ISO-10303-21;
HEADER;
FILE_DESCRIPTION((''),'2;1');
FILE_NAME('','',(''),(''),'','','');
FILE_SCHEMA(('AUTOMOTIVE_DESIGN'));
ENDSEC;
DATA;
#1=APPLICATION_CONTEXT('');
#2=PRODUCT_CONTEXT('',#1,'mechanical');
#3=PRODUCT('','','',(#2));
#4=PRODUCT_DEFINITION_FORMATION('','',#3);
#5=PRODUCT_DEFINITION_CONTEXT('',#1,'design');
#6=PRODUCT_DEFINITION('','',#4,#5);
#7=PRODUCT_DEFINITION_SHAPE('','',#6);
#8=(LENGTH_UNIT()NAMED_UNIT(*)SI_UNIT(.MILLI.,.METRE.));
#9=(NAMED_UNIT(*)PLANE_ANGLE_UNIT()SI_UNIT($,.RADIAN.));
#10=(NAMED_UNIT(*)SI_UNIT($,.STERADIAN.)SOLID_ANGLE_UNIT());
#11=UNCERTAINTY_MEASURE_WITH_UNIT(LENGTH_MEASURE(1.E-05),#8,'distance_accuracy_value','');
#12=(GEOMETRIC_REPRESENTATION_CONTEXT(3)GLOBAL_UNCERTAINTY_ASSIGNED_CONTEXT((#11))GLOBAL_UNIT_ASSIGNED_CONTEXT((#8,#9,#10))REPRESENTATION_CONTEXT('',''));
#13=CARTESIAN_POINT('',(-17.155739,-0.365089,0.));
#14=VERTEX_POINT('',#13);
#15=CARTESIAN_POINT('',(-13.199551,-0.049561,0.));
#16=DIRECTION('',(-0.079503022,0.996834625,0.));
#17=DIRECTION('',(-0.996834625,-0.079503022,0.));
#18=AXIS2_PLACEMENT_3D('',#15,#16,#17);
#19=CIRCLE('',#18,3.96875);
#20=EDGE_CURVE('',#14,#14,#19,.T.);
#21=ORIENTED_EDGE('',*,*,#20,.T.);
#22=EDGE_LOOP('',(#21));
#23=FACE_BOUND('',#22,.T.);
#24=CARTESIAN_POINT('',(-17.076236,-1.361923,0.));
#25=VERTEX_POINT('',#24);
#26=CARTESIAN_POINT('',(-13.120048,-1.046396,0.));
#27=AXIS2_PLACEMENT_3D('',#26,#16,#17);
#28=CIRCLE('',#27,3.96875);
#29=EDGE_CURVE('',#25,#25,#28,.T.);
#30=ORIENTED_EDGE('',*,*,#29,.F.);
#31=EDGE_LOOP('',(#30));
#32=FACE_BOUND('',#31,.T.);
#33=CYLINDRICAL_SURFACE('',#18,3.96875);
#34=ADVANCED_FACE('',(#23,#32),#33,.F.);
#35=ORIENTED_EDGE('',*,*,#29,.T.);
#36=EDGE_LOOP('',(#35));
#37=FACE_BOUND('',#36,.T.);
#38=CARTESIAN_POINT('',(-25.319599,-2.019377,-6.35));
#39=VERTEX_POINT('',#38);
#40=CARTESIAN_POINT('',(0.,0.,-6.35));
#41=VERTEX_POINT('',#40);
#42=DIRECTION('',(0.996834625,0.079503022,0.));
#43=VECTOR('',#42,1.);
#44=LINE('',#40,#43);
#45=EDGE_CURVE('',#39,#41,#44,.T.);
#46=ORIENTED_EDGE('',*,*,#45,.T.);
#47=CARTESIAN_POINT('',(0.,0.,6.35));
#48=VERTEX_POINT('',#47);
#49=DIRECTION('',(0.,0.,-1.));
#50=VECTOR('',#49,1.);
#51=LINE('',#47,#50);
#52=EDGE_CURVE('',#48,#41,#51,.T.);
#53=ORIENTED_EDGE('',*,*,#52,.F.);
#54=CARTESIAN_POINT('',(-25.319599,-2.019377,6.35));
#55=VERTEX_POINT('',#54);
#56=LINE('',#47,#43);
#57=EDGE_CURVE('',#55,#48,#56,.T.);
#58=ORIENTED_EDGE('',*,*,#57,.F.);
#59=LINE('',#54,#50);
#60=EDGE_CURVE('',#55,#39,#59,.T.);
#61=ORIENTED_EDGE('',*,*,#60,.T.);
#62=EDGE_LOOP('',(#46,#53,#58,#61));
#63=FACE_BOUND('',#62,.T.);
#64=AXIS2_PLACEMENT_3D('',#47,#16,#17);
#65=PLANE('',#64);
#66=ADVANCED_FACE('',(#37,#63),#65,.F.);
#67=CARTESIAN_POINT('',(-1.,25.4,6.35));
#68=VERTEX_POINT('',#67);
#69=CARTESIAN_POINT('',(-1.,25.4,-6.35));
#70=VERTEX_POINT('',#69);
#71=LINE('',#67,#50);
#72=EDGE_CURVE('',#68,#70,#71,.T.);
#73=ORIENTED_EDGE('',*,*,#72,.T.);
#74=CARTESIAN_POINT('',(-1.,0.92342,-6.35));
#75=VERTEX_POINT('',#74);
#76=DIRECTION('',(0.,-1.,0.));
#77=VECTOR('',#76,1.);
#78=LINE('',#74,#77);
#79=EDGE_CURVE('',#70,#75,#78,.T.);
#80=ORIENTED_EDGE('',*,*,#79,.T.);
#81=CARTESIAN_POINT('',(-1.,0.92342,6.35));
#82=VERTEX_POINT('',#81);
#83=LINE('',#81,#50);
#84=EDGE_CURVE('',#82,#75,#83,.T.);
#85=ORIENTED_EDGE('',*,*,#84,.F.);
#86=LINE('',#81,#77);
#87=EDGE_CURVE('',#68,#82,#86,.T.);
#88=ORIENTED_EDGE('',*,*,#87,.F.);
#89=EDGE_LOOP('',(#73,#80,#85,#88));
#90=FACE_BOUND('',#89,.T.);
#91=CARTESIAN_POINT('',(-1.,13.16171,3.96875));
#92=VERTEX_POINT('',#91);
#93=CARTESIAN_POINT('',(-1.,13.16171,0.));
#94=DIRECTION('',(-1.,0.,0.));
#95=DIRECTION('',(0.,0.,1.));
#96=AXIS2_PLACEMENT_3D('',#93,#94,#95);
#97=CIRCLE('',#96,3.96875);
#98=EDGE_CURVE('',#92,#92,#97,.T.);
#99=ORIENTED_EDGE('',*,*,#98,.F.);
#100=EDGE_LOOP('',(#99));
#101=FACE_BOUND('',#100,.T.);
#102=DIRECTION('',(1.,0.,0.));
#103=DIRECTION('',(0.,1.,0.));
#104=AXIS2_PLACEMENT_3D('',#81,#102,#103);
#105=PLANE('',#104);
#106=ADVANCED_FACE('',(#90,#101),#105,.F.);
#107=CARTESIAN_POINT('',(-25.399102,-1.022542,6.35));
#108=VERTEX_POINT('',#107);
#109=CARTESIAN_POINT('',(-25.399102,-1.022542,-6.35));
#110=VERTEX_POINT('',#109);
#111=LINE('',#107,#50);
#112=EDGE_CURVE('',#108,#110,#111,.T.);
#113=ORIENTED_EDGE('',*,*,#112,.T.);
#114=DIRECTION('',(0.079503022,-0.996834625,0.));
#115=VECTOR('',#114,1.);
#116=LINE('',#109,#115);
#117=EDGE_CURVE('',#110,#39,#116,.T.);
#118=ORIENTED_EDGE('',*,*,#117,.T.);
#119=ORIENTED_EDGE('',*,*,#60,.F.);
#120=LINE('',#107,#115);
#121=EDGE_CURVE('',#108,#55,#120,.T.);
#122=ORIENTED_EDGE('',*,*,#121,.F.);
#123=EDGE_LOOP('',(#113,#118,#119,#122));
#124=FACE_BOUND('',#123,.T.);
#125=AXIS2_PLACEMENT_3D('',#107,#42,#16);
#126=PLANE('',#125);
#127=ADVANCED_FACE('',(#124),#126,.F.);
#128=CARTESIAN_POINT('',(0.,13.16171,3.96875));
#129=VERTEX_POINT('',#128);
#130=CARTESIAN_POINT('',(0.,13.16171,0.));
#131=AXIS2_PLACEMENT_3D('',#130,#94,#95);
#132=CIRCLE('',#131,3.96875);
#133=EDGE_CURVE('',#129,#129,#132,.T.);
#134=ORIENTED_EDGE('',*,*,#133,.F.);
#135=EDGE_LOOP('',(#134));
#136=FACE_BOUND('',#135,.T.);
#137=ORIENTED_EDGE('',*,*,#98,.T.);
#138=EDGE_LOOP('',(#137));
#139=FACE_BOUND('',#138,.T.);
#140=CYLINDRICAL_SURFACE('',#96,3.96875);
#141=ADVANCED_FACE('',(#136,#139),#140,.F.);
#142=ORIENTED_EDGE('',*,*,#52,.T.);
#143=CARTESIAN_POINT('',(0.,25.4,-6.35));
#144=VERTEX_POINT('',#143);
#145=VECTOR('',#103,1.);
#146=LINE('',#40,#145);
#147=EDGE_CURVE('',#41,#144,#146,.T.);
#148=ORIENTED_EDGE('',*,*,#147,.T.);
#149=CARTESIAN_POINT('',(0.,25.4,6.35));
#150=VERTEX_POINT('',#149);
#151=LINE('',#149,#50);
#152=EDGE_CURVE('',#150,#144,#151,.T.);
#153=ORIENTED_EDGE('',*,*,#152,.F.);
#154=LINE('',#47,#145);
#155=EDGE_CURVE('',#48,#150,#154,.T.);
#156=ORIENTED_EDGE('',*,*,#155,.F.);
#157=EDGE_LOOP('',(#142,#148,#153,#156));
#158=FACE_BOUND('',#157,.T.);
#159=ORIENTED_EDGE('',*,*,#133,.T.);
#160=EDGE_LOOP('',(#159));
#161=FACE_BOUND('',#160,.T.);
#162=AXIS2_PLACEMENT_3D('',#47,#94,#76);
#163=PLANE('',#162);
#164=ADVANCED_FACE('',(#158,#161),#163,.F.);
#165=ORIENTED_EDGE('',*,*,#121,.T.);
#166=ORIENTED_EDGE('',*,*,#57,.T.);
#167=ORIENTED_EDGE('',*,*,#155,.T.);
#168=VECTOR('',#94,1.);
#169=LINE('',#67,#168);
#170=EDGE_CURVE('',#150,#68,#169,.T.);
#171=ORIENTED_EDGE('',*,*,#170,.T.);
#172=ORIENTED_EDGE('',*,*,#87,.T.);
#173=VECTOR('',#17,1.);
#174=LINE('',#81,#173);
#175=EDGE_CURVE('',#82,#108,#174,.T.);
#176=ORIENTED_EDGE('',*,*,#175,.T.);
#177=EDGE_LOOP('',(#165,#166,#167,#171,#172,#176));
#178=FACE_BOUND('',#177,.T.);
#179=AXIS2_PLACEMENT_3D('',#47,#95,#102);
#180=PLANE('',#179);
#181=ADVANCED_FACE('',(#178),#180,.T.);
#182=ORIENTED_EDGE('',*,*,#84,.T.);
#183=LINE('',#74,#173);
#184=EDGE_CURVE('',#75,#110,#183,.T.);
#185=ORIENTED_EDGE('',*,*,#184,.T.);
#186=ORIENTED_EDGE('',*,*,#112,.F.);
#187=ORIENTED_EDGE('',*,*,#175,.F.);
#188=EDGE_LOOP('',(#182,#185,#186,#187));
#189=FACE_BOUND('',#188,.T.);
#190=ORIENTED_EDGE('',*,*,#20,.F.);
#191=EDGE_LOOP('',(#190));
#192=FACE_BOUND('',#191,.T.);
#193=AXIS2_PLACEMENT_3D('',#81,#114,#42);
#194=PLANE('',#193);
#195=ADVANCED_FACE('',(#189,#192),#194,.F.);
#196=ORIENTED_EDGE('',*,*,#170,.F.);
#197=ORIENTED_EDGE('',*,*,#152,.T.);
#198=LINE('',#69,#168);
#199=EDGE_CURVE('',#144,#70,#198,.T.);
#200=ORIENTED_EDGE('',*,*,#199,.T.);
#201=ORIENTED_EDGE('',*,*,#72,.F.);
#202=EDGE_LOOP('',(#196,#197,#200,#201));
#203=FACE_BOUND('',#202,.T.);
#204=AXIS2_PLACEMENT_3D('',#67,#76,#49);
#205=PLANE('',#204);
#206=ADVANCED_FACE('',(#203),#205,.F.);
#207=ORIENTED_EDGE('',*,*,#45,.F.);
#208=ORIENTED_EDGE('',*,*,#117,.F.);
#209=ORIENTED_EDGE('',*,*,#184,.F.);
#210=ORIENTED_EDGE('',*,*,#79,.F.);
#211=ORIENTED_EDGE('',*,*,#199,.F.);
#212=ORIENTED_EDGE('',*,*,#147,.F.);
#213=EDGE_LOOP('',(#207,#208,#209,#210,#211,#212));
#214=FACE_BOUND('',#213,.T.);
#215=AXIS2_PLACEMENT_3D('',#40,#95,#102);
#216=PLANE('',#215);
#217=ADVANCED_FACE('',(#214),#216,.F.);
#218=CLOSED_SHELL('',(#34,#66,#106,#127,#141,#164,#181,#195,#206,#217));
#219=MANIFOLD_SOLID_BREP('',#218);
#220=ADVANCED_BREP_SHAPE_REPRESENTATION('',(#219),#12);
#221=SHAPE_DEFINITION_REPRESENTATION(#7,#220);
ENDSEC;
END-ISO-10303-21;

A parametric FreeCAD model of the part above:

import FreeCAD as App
import Part
import Sketcher
from FreeCAD import Vector
Q = App.Units.Quantity


def add_polygon(sketch, points):
    """Adds a closed chain of lines whose ends are joined by coincident constraints."""
    first, n = sketch.GeometryCount, len(points)
    for a, b in zip(points, points[1:] + points[:1]):
        sketch.addGeometry(Part.LineSegment(App.Vector(*a, 0), App.Vector(*b, 0)), False)
    for i in range(n):
        sketch.addConstraint(Sketcher.Constraint("Coincident", first + i, 2, first + (i + 1) % n, 1))

doc = App.newDocument("Part")
params = doc.addObject("Spreadsheet::Sheet", "Params")
for row, (alias, value) in enumerate([
    ("sketch1_height", "1 in"),
    ("sketch1_length", "1 in"),
    ("pad1_length", "0.5 in"),
    ("sketch2_diameter", "0.3125 in"),
    ("hole_diameter", "0.3125 in"),
    ("sketch3_diameter", "0.3125 in"),
    ("hole2_diameter", "0.3125 in"),
], start=1):
    params.set(f"A{row}", alias)
    params.set(f"B{row}", "=" + value)
    params.setAlias(f"B{row}", alias)

body = doc.addObject("PartDesign::Body", "Body")

sketch1 = body.newObject("Sketcher::SketchObject", "Sketch")
sketch1.AttachmentSupport = (doc.getObject("XY_Plane"), [""])
sketch1.MapMode = "FlatFace"
add_polygon(sketch1, [(0, 0), (0, 25.4), (-1, 25.4), (-1, 0.9), (-25.4, -1), (-25.3, -2)])
sketch1.addConstraint([
    Sketcher.Constraint("Vertical", 0),
    Sketcher.Constraint("Horizontal", 1),
    Sketcher.Constraint("Vertical", 2),
    Sketcher.Constraint("Coincident", 5, 2, -1, 1),
    Sketcher.Constraint("Perpendicular", 3, 4),
    Sketcher.Constraint("Perpendicular", 4, 5),
    Sketcher.Constraint("DistanceY", 0, 1, 0, 2, Q("1 in")),
    Sketcher.Constraint("Distance", 5, Q("1 in")),
    Sketcher.Constraint("Angle", 3, Q("-175.44 deg")),
    Sketcher.Constraint("DistanceX", 1, 2, 1, 1, 1.0),
    Sketcher.Constraint("Distance", 4, 1.0),
])
sketch1.setExpression("Constraints[12]", "Params.sketch1_height")
sketch1.setExpression("Constraints[13]", "Params.sketch1_length")
pad1 = body.newObject("PartDesign::Pad", "Pad")
pad1.Profile = sketch1
pad1.setExpression("Length", "Params.pad1_length")
pad1.Midplane = True

sketch2 = body.newObject("Sketcher::SketchObject", "Sketch001")
sketch2.AttachmentSupport = (doc.getObject("YZ_Plane"), [""])
sketch2.MapMode = "FlatFace"
sketch2.AttachmentOffset = App.Placement(Vector(0, 0, -1), App.Rotation())
sketch2.addGeometry(Part.Circle(Vector(13.2, 0, 0), Vector(0, 0, 1), 4), False)
sketch2.addConstraint([
    Sketcher.Constraint("PointOnObject", 0, 3, -1),
    Sketcher.Constraint("Diameter", 0, Q("0.3125 in")),
    Sketcher.Constraint("DistanceX", -1, 1, 0, 3, 13.16171),
])
sketch2.setExpression("Constraints[1]", "Params.sketch2_diameter")
doc.recompute()
hole = body.newObject("PartDesign::Hole", "Hole")
hole.Profile = sketch2
hole.ThreadType = "None"
hole.setExpression("Diameter", "Params.hole_diameter")
hole.DepthType = "ThroughAll"
hole.Reversed = True

sketch3 = body.newObject("Sketcher::SketchObject", "Sketch002")
sketch3.Placement = App.Placement(Vector(-0.079503, 0.996835, 0), App.Rotation(Vector(0.996834625, 0.079503022, 0), Vector(0, 0, -1), Vector(-0.079503022, 0.996834625, 0), "ZXY"))
sketch3.addGeometry(Part.Circle(Vector(-13.2, 0, 0), Vector(0, 0, 1), 4), False)
sketch3.addConstraint([
    Sketcher.Constraint("PointOnObject", 0, 3, -1),
    Sketcher.Constraint("Diameter", 0, Q("0.3125 in")),
    Sketcher.Constraint("DistanceX", 0, 3, -1, 1, 13.16171),
])
sketch3.setExpression("Constraints[1]", "Params.sketch3_diameter")
doc.recompute()
hole2 = body.newObject("PartDesign::Hole", "Hole001")
hole2.Profile = sketch3
hole2.ThreadType = "None"
hole2.setExpression("Diameter", "Params.hole2_diameter")
hole2.DepthType = "ThroughAll"

doc.recompute()
